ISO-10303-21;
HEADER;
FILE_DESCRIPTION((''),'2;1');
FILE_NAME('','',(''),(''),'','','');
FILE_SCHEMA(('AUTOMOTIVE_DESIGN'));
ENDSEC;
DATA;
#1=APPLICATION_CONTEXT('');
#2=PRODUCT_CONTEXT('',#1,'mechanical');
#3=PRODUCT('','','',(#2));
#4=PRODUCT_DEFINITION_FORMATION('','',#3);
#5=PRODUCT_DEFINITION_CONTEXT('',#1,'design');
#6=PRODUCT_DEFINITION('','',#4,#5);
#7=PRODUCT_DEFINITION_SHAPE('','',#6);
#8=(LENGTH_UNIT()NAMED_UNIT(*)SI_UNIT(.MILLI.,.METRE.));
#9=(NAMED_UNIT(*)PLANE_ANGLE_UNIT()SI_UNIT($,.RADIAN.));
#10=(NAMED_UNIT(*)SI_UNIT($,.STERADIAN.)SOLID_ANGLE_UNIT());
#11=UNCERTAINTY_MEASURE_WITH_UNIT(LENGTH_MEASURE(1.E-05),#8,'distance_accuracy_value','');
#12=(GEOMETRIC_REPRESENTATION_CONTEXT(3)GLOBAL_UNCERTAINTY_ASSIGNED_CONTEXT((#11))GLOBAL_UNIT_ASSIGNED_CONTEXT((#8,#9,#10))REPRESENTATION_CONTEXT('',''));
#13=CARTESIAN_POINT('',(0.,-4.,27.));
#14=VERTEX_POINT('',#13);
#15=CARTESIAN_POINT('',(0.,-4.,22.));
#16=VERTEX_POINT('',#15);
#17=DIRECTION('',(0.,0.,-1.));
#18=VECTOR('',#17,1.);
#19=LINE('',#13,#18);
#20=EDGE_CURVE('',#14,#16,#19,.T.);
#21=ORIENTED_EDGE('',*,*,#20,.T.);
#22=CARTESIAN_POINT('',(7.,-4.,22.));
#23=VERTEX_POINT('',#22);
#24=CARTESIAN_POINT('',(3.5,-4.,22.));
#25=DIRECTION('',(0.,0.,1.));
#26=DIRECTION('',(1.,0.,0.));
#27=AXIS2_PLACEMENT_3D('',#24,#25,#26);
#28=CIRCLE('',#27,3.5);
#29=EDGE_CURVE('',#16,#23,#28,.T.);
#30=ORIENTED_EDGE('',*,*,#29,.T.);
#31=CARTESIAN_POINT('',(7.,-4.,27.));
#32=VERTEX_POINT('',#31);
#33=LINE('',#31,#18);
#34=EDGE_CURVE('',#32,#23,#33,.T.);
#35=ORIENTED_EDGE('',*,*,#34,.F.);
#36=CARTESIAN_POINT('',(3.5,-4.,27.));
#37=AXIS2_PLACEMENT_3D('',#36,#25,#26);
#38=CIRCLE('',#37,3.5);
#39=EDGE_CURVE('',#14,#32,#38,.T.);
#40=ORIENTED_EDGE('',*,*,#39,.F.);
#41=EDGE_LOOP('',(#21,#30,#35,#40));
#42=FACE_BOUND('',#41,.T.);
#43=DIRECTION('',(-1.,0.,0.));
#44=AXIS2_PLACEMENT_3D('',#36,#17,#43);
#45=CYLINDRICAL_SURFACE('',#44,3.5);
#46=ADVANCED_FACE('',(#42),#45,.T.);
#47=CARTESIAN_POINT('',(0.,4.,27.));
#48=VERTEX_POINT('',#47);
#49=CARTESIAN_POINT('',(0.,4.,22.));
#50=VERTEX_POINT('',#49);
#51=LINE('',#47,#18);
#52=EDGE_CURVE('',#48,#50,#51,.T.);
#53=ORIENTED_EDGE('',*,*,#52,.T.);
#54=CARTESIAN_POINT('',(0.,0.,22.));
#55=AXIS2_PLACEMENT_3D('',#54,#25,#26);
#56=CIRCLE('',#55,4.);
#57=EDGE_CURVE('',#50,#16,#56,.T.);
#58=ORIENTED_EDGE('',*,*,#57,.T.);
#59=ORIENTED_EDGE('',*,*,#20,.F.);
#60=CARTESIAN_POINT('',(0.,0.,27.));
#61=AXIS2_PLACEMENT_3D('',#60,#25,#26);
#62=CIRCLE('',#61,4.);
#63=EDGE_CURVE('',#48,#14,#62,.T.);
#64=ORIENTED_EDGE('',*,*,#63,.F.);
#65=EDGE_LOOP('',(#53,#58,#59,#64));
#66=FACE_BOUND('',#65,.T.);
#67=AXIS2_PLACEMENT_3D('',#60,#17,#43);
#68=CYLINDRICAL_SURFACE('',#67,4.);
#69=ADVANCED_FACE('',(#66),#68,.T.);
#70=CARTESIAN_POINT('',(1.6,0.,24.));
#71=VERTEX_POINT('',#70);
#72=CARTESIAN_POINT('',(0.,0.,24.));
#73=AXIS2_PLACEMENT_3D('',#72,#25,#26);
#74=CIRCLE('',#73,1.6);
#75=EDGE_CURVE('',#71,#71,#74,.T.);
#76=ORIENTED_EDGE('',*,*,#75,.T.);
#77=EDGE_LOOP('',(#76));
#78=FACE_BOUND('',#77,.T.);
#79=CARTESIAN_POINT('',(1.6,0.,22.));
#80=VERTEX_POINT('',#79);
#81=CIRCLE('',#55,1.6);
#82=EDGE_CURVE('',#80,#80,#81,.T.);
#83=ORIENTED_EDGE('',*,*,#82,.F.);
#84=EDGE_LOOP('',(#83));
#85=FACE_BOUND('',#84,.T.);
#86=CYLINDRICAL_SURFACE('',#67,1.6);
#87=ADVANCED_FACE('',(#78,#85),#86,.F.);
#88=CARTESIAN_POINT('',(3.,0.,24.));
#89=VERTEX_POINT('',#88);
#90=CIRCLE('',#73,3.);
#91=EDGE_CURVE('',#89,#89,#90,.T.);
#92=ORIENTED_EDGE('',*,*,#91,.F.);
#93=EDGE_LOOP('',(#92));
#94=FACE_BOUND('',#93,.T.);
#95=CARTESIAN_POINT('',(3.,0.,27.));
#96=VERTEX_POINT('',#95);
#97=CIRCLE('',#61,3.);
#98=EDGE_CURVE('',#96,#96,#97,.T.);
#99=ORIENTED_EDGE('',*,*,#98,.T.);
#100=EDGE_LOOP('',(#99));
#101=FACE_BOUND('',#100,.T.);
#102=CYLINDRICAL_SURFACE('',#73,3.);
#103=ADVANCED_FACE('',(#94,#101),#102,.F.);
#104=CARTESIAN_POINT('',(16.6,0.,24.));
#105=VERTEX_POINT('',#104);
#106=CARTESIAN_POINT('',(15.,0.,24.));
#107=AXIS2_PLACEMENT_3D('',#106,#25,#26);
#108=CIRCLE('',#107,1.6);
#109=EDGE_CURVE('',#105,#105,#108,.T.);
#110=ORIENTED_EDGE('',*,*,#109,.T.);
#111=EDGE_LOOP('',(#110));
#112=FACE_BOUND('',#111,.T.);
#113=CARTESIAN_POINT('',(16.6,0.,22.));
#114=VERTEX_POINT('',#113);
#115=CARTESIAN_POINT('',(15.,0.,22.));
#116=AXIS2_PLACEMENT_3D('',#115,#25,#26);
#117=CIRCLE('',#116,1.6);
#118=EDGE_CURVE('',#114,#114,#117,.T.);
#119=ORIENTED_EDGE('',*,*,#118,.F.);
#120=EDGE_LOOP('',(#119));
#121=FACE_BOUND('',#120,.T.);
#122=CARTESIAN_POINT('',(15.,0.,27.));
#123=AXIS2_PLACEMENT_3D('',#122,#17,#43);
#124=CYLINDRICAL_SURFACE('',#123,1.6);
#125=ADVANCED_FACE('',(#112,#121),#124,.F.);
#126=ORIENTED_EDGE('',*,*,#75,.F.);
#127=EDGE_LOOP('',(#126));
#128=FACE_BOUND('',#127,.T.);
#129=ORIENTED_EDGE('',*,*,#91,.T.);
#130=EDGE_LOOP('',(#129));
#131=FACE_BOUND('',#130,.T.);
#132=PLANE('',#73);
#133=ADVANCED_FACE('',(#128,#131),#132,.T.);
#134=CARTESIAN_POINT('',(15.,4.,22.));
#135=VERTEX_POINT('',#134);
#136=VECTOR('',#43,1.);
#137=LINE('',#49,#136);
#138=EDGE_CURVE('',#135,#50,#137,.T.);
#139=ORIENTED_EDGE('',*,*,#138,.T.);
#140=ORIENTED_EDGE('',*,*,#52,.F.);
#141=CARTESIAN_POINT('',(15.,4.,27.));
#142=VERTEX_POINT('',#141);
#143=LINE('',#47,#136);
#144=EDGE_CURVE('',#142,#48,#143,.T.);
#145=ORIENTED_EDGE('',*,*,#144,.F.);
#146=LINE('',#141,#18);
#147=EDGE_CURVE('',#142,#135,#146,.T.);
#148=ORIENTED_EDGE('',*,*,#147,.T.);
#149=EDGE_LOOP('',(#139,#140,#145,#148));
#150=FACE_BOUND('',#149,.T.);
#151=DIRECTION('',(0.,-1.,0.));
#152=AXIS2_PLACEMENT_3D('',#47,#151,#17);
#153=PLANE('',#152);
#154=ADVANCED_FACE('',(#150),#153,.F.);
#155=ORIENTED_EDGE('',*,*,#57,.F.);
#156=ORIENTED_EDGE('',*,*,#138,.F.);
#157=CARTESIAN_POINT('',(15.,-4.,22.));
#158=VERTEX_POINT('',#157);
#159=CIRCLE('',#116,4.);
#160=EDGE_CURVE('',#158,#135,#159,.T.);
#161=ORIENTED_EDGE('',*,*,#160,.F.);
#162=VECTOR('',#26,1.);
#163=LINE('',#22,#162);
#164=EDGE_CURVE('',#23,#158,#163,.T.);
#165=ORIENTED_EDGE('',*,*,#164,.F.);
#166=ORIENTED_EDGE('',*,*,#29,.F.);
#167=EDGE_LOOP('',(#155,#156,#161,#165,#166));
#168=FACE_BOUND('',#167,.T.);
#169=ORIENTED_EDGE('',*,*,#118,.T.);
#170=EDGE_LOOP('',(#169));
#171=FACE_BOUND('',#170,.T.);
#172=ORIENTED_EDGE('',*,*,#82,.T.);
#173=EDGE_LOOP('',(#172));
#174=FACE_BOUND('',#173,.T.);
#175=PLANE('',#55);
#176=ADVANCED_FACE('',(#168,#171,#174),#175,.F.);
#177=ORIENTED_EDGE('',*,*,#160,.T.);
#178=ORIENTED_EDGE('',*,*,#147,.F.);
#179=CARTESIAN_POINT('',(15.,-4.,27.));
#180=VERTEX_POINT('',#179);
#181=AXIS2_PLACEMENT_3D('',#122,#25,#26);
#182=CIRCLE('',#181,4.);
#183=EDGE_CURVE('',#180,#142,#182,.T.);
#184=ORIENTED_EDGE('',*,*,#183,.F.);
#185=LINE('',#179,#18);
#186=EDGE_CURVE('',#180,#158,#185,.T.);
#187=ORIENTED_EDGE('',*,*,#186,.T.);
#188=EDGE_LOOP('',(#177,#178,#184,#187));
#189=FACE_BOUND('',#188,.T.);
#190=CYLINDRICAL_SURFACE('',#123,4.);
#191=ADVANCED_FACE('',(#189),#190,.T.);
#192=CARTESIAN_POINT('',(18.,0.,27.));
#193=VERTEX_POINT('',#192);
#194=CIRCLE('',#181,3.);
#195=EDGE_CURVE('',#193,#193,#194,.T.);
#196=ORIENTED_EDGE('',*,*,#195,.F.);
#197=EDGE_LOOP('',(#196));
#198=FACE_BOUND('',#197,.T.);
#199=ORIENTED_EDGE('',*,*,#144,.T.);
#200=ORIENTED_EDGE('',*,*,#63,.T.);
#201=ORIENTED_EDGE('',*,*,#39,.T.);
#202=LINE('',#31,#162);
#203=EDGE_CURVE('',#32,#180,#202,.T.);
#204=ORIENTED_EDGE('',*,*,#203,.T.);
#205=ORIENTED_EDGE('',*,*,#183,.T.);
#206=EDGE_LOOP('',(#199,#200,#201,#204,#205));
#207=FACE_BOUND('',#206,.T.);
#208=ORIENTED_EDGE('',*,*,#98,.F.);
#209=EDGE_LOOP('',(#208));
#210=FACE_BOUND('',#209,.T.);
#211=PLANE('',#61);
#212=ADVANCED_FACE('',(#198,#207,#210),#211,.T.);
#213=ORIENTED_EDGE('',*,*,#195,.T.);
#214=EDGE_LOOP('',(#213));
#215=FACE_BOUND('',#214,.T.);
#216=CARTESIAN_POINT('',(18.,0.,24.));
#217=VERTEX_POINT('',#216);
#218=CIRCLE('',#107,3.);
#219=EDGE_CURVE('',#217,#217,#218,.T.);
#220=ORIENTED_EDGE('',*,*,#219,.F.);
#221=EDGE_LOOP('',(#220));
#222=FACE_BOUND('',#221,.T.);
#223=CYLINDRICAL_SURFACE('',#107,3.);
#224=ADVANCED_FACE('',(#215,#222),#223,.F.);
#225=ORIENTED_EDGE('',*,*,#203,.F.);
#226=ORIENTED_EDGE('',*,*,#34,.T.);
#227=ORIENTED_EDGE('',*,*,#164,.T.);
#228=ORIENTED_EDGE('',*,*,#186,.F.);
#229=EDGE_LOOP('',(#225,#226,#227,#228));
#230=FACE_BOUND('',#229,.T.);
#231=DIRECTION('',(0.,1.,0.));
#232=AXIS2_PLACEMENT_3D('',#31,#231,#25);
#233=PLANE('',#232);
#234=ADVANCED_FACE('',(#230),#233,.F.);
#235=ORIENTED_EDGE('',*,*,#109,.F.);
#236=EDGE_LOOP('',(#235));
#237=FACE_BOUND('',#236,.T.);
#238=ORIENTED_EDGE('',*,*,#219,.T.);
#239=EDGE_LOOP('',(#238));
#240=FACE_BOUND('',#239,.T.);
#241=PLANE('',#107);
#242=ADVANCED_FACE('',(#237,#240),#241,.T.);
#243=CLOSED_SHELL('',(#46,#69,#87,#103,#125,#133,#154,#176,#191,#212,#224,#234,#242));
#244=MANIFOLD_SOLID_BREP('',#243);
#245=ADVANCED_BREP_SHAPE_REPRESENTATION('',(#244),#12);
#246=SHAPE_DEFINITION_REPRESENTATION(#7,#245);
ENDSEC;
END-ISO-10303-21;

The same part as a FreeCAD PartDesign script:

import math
import FreeCAD as App
import Part
import Sketcher

doc = App.newDocument("Part")
params = doc.addObject("Spreadsheet::Sheet", "Params")
for row, (alias, value) in enumerate([
    ("sketch1_radius", "4 mm"),
    ("sketch1_diameter", "3.2 mm"),
    ("sketch1_radius2", "3.5 mm"),
    ("sketch1_width", "15 mm"),
    ("pad1_length", "5 mm"),
    ("sketch2_diameter", "6 mm"),
    ("pocket1_length", "3 mm"),
], start=1):
    params.set(f"A{row}", alias)
    params.set(f"B{row}", "=" + value)
    params.setAlias(f"B{row}", alias)

body = doc.addObject("PartDesign::Body", "Body")

# Sketch on XY plane
sketch1 = body.newObject("Sketcher::SketchObject", "Sketch")
sketch1.AttachmentSupport = (doc.getObject("XY_Plane"), [""])
sketch1.MapMode = "FlatFace"
sketch1.AttachmentOffset = App.Placement(App.Vector(0, 0, 22), App.Rotation())
sketch1.addGeometry([
    Part.LineSegment(App.Vector(15, 4, 0), App.Vector(0, 4, 0)),  # 0
    Part.ArcOfCircle(Part.Circle(App.Vector(0, 0, 0), App.Vector(0, 0, 1), 4), math.radians(90), math.radians(270)),  # 1
    Part.ArcOfCircle(Part.Circle(App.Vector(3.5, -4, 0), App.Vector(0, 0, 1), 3.5), math.radians(180), math.radians(360)),  # 2
    Part.LineSegment(App.Vector(7, -4, 0), App.Vector(15, -4, 0)),  # 3
    Part.ArcOfCircle(Part.Circle(App.Vector(15, 0, 0), App.Vector(0, 0, 1), 4), math.radians(-90), math.radians(90)),  # 4
    Part.Circle(App.Vector(15, 0, 0), App.Vector(0, 0, 1), 1.6),  # 5
    Part.Circle(App.Vector(0, 0, 0), App.Vector(0, 0, 1), 1.6),  # 6
], False)
sketch1.addConstraint([
    Sketcher.Constraint("Tangent", 0, 2, 1, 1),
    Sketcher.Constraint("Coincident", 1, 2, 2, 1),
    Sketcher.Constraint("Coincident", 2, 2, 3, 1),
    Sketcher.Constraint("Tangent", 3, 2, 4, 1),
    Sketcher.Constraint("Tangent", 4, 2, 0, 1),
    Sketcher.Constraint("Horizontal", 0),
    Sketcher.Constraint("Horizontal", 3),
    Sketcher.Constraint("Coincident", 1, 3, -1, 1),
    Sketcher.Constraint("Coincident", 6, 3, -1, 1),
    Sketcher.Constraint("Coincident", 5, 3, 4, 3),
    Sketcher.Constraint("Equal", 1, 4),
    Sketcher.Constraint("Equal", 5, 6),
    Sketcher.Constraint("PointOnObject", 1, 2, -2),
    Sketcher.Constraint("Horizontal", 2, 3, 1, 2),
    Sketcher.Constraint("Radius", 1, 4.0),
    Sketcher.Constraint("Diameter", 5, 3.2),
    Sketcher.Constraint("Radius", 2, 3.5),
    Sketcher.Constraint("DistanceX", 0, 2, 0, 1, 15.0),
])
sketch1.setExpression("Constraints[14]", "Params.sketch1_radius")
sketch1.setExpression("Constraints[15]", "Params.sketch1_diameter")
sketch1.setExpression("Constraints[16]", "Params.sketch1_radius2")
sketch1.setExpression("Constraints[17]", "Params.sketch1_width")
pad1 = body.newObject("PartDesign::Pad", "Pad")
pad1.Profile = sketch1
pad1.setExpression("Length", "Params.pad1_length")

# Sketch on XY plane
sketch2 = body.newObject("Sketcher::SketchObject", "Sketch001")
sketch2.AttachmentSupport = (doc.getObject("XY_Plane"), [""])
sketch2.MapMode = "FlatFace"
sketch2.AttachmentOffset = App.Placement(App.Vector(0, 0, 27), App.Rotation())
sketch2.addGeometry([
    Part.Circle(App.Vector(0, 0, 0), App.Vector(0, 0, 1), 3),
    Part.Circle(App.Vector(15, 0, 0), App.Vector(0, 0, 1), 3),
], False)
sketch2.addConstraint([
    Sketcher.Constraint("Coincident", 0, 3, -1, 1),
    Sketcher.Constraint("Equal", 0, 1),
    Sketcher.Constraint("PointOnObject", 1, 3, -1),
    Sketcher.Constraint("Diameter", 0, 6.0),
    Sketcher.Constraint("DistanceX", -1, 1, 1, 3, 15.0),
])
sketch2.setExpression("Constraints[3]", "Params.sketch2_diameter")
pocket1 = body.newObject("PartDesign::Pocket", "Pocket")
pocket1.Profile = sketch2
pocket1.setExpression("Length", "Params.pocket1_length")

doc.recompute()
